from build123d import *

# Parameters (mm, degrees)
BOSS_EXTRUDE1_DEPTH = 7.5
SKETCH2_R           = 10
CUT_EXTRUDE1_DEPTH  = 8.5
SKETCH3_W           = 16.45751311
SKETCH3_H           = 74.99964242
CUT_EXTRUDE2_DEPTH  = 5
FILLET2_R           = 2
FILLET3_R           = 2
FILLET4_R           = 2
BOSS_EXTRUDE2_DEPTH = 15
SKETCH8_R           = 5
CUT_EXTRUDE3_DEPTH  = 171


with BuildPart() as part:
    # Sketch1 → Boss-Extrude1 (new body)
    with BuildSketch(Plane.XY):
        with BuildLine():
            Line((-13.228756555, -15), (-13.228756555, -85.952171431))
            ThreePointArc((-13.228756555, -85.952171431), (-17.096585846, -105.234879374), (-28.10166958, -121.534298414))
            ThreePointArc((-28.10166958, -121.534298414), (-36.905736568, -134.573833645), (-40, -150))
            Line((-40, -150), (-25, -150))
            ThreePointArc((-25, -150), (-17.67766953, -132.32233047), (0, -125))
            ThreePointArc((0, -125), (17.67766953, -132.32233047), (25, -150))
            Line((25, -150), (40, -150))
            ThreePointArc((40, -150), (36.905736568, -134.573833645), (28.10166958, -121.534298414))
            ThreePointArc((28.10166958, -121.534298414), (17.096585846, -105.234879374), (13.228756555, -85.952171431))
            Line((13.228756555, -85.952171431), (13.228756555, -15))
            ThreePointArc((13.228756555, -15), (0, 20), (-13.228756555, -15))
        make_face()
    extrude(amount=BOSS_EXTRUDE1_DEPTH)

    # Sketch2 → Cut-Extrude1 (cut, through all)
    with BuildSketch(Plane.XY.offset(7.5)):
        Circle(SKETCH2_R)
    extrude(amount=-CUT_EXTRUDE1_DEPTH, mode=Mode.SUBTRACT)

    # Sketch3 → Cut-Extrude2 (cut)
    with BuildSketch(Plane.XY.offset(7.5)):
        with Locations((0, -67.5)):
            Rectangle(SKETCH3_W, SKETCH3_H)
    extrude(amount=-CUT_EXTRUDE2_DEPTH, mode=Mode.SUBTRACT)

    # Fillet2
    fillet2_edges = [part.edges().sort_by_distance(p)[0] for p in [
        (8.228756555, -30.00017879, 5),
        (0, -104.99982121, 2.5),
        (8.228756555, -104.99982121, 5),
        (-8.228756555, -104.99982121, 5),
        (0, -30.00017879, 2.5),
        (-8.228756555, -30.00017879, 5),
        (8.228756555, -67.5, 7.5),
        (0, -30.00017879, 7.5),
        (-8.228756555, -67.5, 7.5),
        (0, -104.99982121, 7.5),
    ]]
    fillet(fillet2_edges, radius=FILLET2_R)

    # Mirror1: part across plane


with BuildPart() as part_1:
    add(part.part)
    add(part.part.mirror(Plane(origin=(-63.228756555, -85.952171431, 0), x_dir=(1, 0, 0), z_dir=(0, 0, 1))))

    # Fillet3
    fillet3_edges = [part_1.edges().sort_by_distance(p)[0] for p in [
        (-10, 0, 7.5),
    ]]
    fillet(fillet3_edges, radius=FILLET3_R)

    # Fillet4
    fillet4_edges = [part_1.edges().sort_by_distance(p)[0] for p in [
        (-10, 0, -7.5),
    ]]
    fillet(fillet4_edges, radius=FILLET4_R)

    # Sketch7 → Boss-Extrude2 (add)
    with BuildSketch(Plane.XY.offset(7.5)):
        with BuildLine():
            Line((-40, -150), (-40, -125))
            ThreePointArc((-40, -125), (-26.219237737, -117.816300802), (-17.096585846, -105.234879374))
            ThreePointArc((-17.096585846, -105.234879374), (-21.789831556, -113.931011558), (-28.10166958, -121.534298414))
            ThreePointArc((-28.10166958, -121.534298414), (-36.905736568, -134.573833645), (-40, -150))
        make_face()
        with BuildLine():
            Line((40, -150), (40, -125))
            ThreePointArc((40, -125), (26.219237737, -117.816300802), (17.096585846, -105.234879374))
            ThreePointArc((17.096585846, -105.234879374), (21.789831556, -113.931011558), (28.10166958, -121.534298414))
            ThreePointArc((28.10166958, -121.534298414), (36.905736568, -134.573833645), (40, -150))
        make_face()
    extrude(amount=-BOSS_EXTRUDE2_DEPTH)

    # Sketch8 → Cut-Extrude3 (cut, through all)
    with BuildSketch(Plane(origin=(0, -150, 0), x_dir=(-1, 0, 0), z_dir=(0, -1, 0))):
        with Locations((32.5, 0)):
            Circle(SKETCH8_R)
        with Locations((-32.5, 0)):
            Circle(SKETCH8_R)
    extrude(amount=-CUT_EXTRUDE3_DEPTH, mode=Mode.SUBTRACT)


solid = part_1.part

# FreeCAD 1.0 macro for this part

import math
import FreeCAD as App
import Part
import Sketcher


def edges_at(feature, points):
    """Names of the edges that pass closest to the given points."""
    edges = feature.Shape.Edges
    near = lambda p: min(range(len(edges)), key=lambda i: edges[i].distToShape(Part.Vertex(*p))[0])
    return sorted({f"Edge{near(p) + 1}" for p in points})


def add_polygon(sketch, points):
    """Adds a closed chain of lines whose ends are joined by coincident constraints."""
    first, n = sketch.GeometryCount, len(points)
    for a, b in zip(points, points[1:] + points[:1]):
        sketch.addGeometry(Part.LineSegment(App.Vector(*a, 0), App.Vector(*b, 0)), False)
    for i in range(n):
        sketch.addConstraint(Sketcher.Constraint("Coincident", first + i, 2, first + (i + 1) % n, 1))

doc = App.newDocument("Part")
body = doc.addObject("PartDesign::Body", "Body")

# Sketch on XY plane
sketch1 = body.newObject("Sketcher::SketchObject", "Sketch")
sketch1.AttachmentSupport = (doc.getObject("XY_Plane"), [""])
sketch1.MapMode = "FlatFace"
sketch1.addGeometry([
    Part.LineSegment(App.Vector(-13, -15, 0), App.Vector(-13, -86, 0)),  # 0
    Part.ArcOfCircle(Part.Circle(App.Vector(-63, -86, 0), App.Vector(0, 0, 1), 50), math.radians(-45), math.radians(0)),  # 1
    Part.ArcOfCircle(Part.Circle(App.Vector(0, -150, 0), App.Vector(0, 0, 1), 40), math.radians(135), math.radians(180)),  # 2
    Part.LineSegment(App.Vector(-40, -150, 0), App.Vector(-25, -150, 0)),  # 3
    Part.ArcOfCircle(Part.Circle(App.Vector(0, -150, 0), App.Vector(0, 0, 1), 25), math.radians(90), math.radians(180)),  # 4
    Part.ArcOfCircle(Part.Circle(App.Vector(0, -150, 0), App.Vector(0, 0, 1), 25), math.radians(0), math.radians(90)),  # 5
    Part.LineSegment(App.Vector(25, -150, 0), App.Vector(40, -150, 0)),  # 6
    Part.ArcOfCircle(Part.Circle(App.Vector(0, -150, 0), App.Vector(0, 0, 1), 40), math.radians(0), math.radians(45)),  # 7
    Part.ArcOfCircle(Part.Circle(App.Vector(63, -86, 0), App.Vector(0, 0, 1), 50), math.radians(-180), math.radians(-135)),  # 8
    Part.LineSegment(App.Vector(13, -86, 0), App.Vector(13, -15, 0)),  # 9
    Part.ArcOfCircle(Part.Circle(App.Vector(0, 0, 0), App.Vector(0, 0, 1), 20), math.radians(-49), math.radians(229)),  # 10
], False)
sketch1.addConstraint([
    Sketcher.Constraint("Tangent", 0, 2, 1, 2),
    Sketcher.Constraint("Tangent", 1, 1, 2, 1),
    Sketcher.Constraint("Coincident", 2, 2, 3, 1),
    Sketcher.Constraint("Coincident", 3, 2, 4, 2),
    Sketcher.Constraint("Tangent", 4, 1, 5, 2),
    Sketcher.Constraint("Coincident", 5, 1, 6, 1),
    Sketcher.Constraint("Coincident", 6, 2, 7, 1),
    Sketcher.Constraint("Tangent", 7, 2, 8, 2),
    Sketcher.Constraint("Tangent", 8, 1, 9, 1),
    Sketcher.Constraint("Coincident", 9, 2, 10, 1),
    Sketcher.Constraint("Coincident", 10, 2, 0, 1),
    Sketcher.Constraint("Vertical", 0),
    Sketcher.Constraint("Horizontal", 3),
    Sketcher.Constraint("Horizontal", 6),
    Sketcher.Constraint("Vertical", 9),
    Sketcher.Constraint("Coincident", 10, 3, -1, 1),
    Sketcher.Constraint("Coincident", 4, 3, 2, 3),
    Sketcher.Constraint("Coincident", 7, 3, 2, 3),
    Sketcher.Constraint("Equal", 4, 5),
    Sketcher.Constraint("Equal", 2, 7),
    Sketcher.Constraint("Equal", 1, 8),
    Sketcher.Constraint("Symmetric", 1, 3, 8, 3, -2),
    Sketcher.Constraint("PointOnObject", 4, 1, -2),
    Sketcher.Constraint("Horizontal", 7, 3, 2, 2),
    Sketcher.Constraint("Horizontal", 3, 2, 5, 1),
    Sketcher.Constraint("Radius", 1, 50.0),
    Sketcher.Constraint("Radius", 2, 40.0),
    Sketcher.Constraint("Radius", 4, 25.0),
    Sketcher.Constraint("Radius", 10, 20.0),
    Sketcher.Constraint("DistanceY", 2, 3, -1, 1, 150.0),
    Sketcher.Constraint("DistanceY", 9, 2, -1, 1, 15.0),
])
pad1 = body.newObject("PartDesign::Pad", "Pad")
pad1.Profile = sketch1
pad1.Length = 7.5

# Sketch on XY plane
sketch2 = body.newObject("Sketcher::SketchObject", "Sketch001")
sketch2.AttachmentSupport = (doc.getObject("XY_Plane"), [""])
sketch2.MapMode = "FlatFace"
sketch2.AttachmentOffset = App.Placement(App.Vector(0, 0, 7.5), App.Rotation())
sketch2.addGeometry(Part.Circle(App.Vector(0, 0, 0), App.Vector(0, 0, 1), 10), False)
sketch2.addConstraint([
    Sketcher.Constraint("Coincident", 0, 3, -1, 1),
    Sketcher.Constraint("Diameter", 0, 20.0),
])
pocket1 = body.newObject("PartDesign::Pocket", "Pocket")
pocket1.Profile = sketch2
pocket1.Type = "ThroughAll"

# Sketch on XY plane
sketch3 = body.newObject("Sketcher::SketchObject", "Sketch002")
sketch3.AttachmentSupport = (doc.getObject("XY_Plane"), [""])
sketch3.MapMode = "FlatFace"
sketch3.AttachmentOffset = App.Placement(App.Vector(0, 0, 7.5), App.Rotation())
add_polygon(sketch3, [(-8, -30), (-8, -105), (8, -105), (8, -30)])  # lines 0-3
sketch3.addConstraint([
    Sketcher.Constraint("Vertical", 0),
    Sketcher.Constraint("Horizontal", 1),
    Sketcher.Constraint("Vertical", 2),
    Sketcher.Constraint("Horizontal", 3),
    Sketcher.Constraint("DistanceX", 1, 1, 1, 2, 16.457513),
    Sketcher.Constraint("DistanceY", 0, 2, 0, 1, 74.999642),
    Sketcher.Constraint("DistanceY", 0, 2, -1, 1, 104.999821),
    Sketcher.Constraint("DistanceX", 0, 2, -1, 1, 8.228757),
])
pocket2 = body.newObject("PartDesign::Pocket", "Pocket001")
pocket2.Profile = sketch3
pocket2.Length = 5
doc.recompute()

fillet = body.newObject("PartDesign::Fillet", "Fillet")
fillet.Base = (pocket2, edges_at(pocket2, [
    (8.229, -30, 5),
    (0, -105, 2.5),
    (8.229, -105, 5),
    (-8.229, -105, 5),
    (0, -30, 2.5),
    (-8.229, -30, 5),
    (8.229, -67.5, 7.5),
    (0, -30, 7.5),
    (-8.229, -67.5, 7.5),
    (0, -105, 7.5),
]))
fillet.Radius = 2
body2 = doc.addObject("PartDesign::Body", "Body001")
doc.recompute()

body2.BaseFeature = body
doc.recompute()

mirroring = doc.addObject("Part::Mirroring", "Mirroring")
mirroring.Source = body
mirroring.Base = App.Vector(-63.228757, -85.952171, 0)
mirroring.Normal = App.Vector(0, 0, 1)
body3 = doc.addObject("PartDesign::Body", "Body002")
body3.BaseFeature = mirroring
boolean = body2.newObject("PartDesign::Boolean", "Boolean")
boolean.Type = "Fuse"
boolean.addObjects([body3])
doc.recompute()

fillet2 = body2.newObject("PartDesign::Fillet", "Fillet001")
fillet2.Base = (boolean, edges_at(boolean, [(-10, 0, 7.5)]))
fillet2.Radius = 2
doc.recompute()

fillet3 = body2.newObject("PartDesign::Fillet", "Fillet002")
fillet3.Base = (fillet2, edges_at(fillet2, [(-10, 0, -7.5)]))
fillet3.Radius = 2

# Sketch on XY plane
sketch4 = body2.newObject("Sketcher::SketchObject", "Sketch003")
sketch4.AttachmentSupport = (doc.getObject("XY_Plane001"), [""])
sketch4.MapMode = "FlatFace"
sketch4.AttachmentOffset = App.Placement(App.Vector(0, 0, 7.5), App.Rotation())
sketch4.addGeometry([
    Part.LineSegment(App.Vector(-40, -125, 0), App.Vector(-40, -150, 0)),  # 0
    Part.ArcOfCircle(Part.Circle(App.Vector(0, -150, 0), App.Vector(0, 0, 1), 40), math.radians(135), math.radians(180)),  # 1
    Part.ArcOfCircle(Part.Circle(App.Vector(-63, -86, 0), App.Vector(0, 0, 1), 50), math.radians(-45), math.radians(-23)),  # 2
    Part.ArcOfCircle(Part.Circle(App.Vector(-48, -92, 0), App.Vector(0, 0, 1), 34), math.radians(-76), math.radians(-23)),  # 3
    Part.LineSegment(App.Vector(40, -150, 0), App.Vector(40, -125, 0)),  # 4
    Part.ArcOfCircle(Part.Circle(App.Vector(48, -92, 0), App.Vector(0, 0, 1), 34), math.radians(-157), math.radians(-104)),  # 5
    Part.ArcOfCircle(Part.Circle(App.Vector(63, -86, 0), App.Vector(0, 0, 1), 50), math.radians(-157), math.radians(-135)),  # 6
    Part.ArcOfCircle(Part.Circle(App.Vector(0, -150, 0), App.Vector(0, 0, 1), 40), math.radians(0), math.radians(45)),  # 7
], False)
sketch4.addConstraint([
    Sketcher.Constraint("Tangent", 0, 2, 1, 2),
    Sketcher.Constraint("Tangent", 1, 1, 2, 1),
    Sketcher.Constraint("Tangent", 2, 2, 3, 2),
    Sketcher.Constraint("Coincident", 3, 1, 0, 1),
    Sketcher.Constraint("Coincident", 4, 2, 5, 2),
    Sketcher.Constraint("Tangent", 5, 1, 6, 1),
    Sketcher.Constraint("Tangent", 6, 2, 7, 2),
    Sketcher.Constraint("Tangent", 7, 1, 4, 1),
    Sketcher.Constraint("Vertical", 0),
    Sketcher.Constraint("Vertical", 4),
    Sketcher.Constraint("Coincident", 7, 3, 1, 3),
    Sketcher.Constraint("Equal", 3, 5),
    Sketcher.Constraint("Equal", 2, 6),
    Sketcher.Constraint("Equal", 1, 7),
    Sketcher.Constraint("Symmetric", 3, 3, 5, 3, -2),
    Sketcher.Constraint("PointOnObject", 1, 3, -2),
    Sketcher.Constraint("Radius", 1, 40.0),
    Sketcher.Constraint("Radius", 2, 50.0),
    Sketcher.Constraint("DistanceY", 0, 2, 0, 1, 25.0),
    Sketcher.Constraint("DistanceY", 1, 3, -1, 1, 150.0),
    Sketcher.Constraint("Radius", 3, 33.87423),
    Sketcher.Constraint("DistanceY", 1, 1, -1, 1, 121.534298),
])
pad2 = body2.newObject("PartDesign::Pad", "Pad001")
pad2.Profile = sketch4
pad2.Length = 15
pad2.Reversed = True

# Sketch on XZ plane
sketch5 = body2.newObject("Sketcher::SketchObject", "Sketch004")
sketch5.AttachmentSupport = (doc.getObject("XZ_Plane001"), [""])
sketch5.MapMode = "FlatFace"
sketch5.AttachmentOffset = App.Placement(App.Vector(0, 0, 150), App.Rotation())
sketch5.addGeometry([
    Part.Circle(App.Vector(-32, 0, 0), App.Vector(0, 0, 1), 5),
    Part.Circle(App.Vector(32, 0, 0), App.Vector(0, 0, 1), 5),
], False)
sketch5.addConstraint([
    Sketcher.Constraint("Equal", 0, 1),
    Sketcher.Constraint("Symmetric", 0, 3, 1, 3, -1, 1),
    Sketcher.Constraint("PointOnObject", 0, 3, -1),
    Sketcher.Constraint("Diameter", 0, 10.0),
    Sketcher.Constraint("DistanceX", 0, 3, 1, 3, 65.0),
])
pocket3 = body2.newObject("PartDesign::Pocket", "Pocket002")
pocket3.Profile = sketch5
pocket3.Type = "ThroughAll"
mirroring.Visibility = False

doc.recompute()
